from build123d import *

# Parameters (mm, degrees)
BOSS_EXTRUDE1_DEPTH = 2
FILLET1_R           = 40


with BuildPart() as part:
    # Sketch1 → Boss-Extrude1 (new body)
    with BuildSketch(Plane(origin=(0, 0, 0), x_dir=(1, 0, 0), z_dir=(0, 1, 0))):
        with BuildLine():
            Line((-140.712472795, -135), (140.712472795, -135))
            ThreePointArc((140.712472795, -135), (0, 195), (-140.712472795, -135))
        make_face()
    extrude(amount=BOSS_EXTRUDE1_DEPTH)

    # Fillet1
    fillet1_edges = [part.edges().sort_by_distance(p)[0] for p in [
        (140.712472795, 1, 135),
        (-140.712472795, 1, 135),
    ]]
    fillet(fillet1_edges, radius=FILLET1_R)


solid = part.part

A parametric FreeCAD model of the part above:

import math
import FreeCAD as App
import Part
import Sketcher

V = App.Vector
Q = App.Units.Quantity


def edges_at(feature, points):
    """Names of the edges that pass closest to the given points."""
    edges = feature.Shape.Edges
    near = lambda p: min(range(len(edges)), key=lambda i: edges[i].distToShape(Part.Vertex(*p))[0])
    return sorted({f"Edge{near(p) + 1}" for p in points})

doc = App.newDocument("Part")
body = doc.addObject("PartDesign::Body", "Body")

sketch1 = body.newObject("Sketcher::SketchObject", "Sketch")
sketch1.AttachmentSupport = (doc.getObject("XZ_Plane"), [""])
sketch1.MapMode = "FlatFace"
sketch1.addGeometry([
    Part.LineSegment(V(-141, 135, 0), V(141, 135, 0)),
    Part.ArcOfCircle(Part.Circle(V(0, 0, 0), V(0, 0, 1), 195), math.radians(136), math.radians(404)),
], False)
sketch1.addConstraint([
    Sketcher.Constraint("Coincident", 0, 1, 1, 1),
    Sketcher.Constraint("Coincident", 1, 2, 0, 2),
    Sketcher.Constraint("Horizontal", 0),
    Sketcher.Constraint("Coincident", 1, 3, -1, 1),
    Sketcher.Constraint("Radius", 1, Q("195 mm")),
    Sketcher.Constraint("DistanceY", -1, 1, 0, 1, Q("135 mm")),
])
pad1 = body.newObject("PartDesign::Pad", "Pad")
pad1.Profile = sketch1
pad1.Length = 2
pad1.Reversed = True
doc.recompute()

fillet = body.newObject("PartDesign::Fillet", "Fillet")
fillet.Base = (pad1, edges_at(pad1, [(140.712, 1, 135), (-140.712, 1, 135)]))
fillet.Radius = 40

doc.recompute()
